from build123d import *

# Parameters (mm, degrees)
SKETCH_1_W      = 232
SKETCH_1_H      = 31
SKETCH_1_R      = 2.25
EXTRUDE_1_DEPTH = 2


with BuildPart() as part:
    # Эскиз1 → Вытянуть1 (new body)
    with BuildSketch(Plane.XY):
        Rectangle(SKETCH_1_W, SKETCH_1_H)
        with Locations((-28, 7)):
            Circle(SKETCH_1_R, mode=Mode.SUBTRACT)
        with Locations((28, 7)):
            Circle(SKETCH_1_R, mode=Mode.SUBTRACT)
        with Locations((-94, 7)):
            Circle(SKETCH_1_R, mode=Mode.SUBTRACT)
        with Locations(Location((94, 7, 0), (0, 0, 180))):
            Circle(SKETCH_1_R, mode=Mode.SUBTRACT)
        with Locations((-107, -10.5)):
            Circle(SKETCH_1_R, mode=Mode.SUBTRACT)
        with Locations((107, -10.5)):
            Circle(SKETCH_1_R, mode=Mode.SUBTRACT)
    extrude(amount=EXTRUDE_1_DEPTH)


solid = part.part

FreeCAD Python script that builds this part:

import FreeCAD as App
import Part
import Sketcher

V = App.Vector


def add_polygon(sketch, points):
    """Adds a closed chain of lines whose ends are joined by coincident constraints."""
    first, n = sketch.GeometryCount, len(points)
    for a, b in zip(points, points[1:] + points[:1]):
        sketch.addGeometry(Part.LineSegment(App.Vector(*a, 0), App.Vector(*b, 0)), False)
    for i in range(n):
        sketch.addConstraint(Sketcher.Constraint("Coincident", first + i, 2, first + (i + 1) % n, 1))

doc = App.newDocument("Part")
body = doc.addObject("PartDesign::Body", "Body")

sketch1 = body.newObject("Sketcher::SketchObject", "Sketch")
sketch1.AttachmentSupport = (doc.getObject("XY_Plane"), [""])
sketch1.MapMode = "FlatFace"
add_polygon(sketch1, [(-116, 15.5), (-116, -15.5), (116, -15.5), (116, 15.5)])
sketch1.addGeometry(Part.Circle(V(-107, -10.5, 0), V(0, 0, 1), 2.2), False)
sketch1.addGeometry(Part.Circle(V(107, -10.5, 0), V(0, 0, 1), 2.2), False)
sketch1.addGeometry(Part.Circle(V(-94, 7, 0), V(0, 0, 1), 2.2), False)
sketch1.addGeometry(Part.Circle(V(-28, 7, 0), V(0, 0, 1), 2.2), False)
sketch1.addGeometry(Part.Circle(V(28, 7, 0), V(0, 0, 1), 2.2), False)
sketch1.addGeometry(Part.Circle(V(94, 7, 0), V(0, 0, 1), 2.2), False)
sketch1.addConstraint([
    Sketcher.Constraint("Vertical", 0),
    Sketcher.Constraint("Horizontal", 1),
    Sketcher.Constraint("Vertical", 2),
    Sketcher.Constraint("Horizontal", 3),
    Sketcher.Constraint("Equal", 4, 5),
    Sketcher.Constraint("Equal", 5, 6),
    Sketcher.Constraint("Equal", 6, 7),
    Sketcher.Constraint("Equal", 7, 8),
    Sketcher.Constraint("Equal", 8, 9),
    Sketcher.Constraint("Symmetric", 0, 2, 2, 2, -1, 1),
    Sketcher.Constraint("Symmetric", 4, 3, 5, 3, -2),
    Sketcher.Constraint("Symmetric", 7, 3, 8, 3, -2),
    Sketcher.Constraint("Symmetric", 6, 3, 9, 3, -2),
    Sketcher.Constraint("Horizontal", 6, 3, 7, 3),
    Sketcher.Constraint("Diameter", 4, 4.5),
    Sketcher.Constraint("DistanceX", 1, 1, 1, 2, 232.0),
    Sketcher.Constraint("DistanceY", 0, 2, 0, 1, 31.0),
    Sketcher.Constraint("DistanceX", 4, 3, -1, 1, 107.0),
    Sketcher.Constraint("DistanceX", 6, 3, -1, 1, 94.0),
    Sketcher.Constraint("DistanceY", -1, 1, 6, 3, 7.0),
    Sketcher.Constraint("DistanceX", 7, 3, -1, 1, 28.0),
    Sketcher.Constraint("DistanceY", 0, 2, 4, 3, 5.0),
])
pad1 = body.newObject("PartDesign::Pad", "Pad")
pad1.Profile = sketch1
pad1.Length = 2

doc.recompute()
